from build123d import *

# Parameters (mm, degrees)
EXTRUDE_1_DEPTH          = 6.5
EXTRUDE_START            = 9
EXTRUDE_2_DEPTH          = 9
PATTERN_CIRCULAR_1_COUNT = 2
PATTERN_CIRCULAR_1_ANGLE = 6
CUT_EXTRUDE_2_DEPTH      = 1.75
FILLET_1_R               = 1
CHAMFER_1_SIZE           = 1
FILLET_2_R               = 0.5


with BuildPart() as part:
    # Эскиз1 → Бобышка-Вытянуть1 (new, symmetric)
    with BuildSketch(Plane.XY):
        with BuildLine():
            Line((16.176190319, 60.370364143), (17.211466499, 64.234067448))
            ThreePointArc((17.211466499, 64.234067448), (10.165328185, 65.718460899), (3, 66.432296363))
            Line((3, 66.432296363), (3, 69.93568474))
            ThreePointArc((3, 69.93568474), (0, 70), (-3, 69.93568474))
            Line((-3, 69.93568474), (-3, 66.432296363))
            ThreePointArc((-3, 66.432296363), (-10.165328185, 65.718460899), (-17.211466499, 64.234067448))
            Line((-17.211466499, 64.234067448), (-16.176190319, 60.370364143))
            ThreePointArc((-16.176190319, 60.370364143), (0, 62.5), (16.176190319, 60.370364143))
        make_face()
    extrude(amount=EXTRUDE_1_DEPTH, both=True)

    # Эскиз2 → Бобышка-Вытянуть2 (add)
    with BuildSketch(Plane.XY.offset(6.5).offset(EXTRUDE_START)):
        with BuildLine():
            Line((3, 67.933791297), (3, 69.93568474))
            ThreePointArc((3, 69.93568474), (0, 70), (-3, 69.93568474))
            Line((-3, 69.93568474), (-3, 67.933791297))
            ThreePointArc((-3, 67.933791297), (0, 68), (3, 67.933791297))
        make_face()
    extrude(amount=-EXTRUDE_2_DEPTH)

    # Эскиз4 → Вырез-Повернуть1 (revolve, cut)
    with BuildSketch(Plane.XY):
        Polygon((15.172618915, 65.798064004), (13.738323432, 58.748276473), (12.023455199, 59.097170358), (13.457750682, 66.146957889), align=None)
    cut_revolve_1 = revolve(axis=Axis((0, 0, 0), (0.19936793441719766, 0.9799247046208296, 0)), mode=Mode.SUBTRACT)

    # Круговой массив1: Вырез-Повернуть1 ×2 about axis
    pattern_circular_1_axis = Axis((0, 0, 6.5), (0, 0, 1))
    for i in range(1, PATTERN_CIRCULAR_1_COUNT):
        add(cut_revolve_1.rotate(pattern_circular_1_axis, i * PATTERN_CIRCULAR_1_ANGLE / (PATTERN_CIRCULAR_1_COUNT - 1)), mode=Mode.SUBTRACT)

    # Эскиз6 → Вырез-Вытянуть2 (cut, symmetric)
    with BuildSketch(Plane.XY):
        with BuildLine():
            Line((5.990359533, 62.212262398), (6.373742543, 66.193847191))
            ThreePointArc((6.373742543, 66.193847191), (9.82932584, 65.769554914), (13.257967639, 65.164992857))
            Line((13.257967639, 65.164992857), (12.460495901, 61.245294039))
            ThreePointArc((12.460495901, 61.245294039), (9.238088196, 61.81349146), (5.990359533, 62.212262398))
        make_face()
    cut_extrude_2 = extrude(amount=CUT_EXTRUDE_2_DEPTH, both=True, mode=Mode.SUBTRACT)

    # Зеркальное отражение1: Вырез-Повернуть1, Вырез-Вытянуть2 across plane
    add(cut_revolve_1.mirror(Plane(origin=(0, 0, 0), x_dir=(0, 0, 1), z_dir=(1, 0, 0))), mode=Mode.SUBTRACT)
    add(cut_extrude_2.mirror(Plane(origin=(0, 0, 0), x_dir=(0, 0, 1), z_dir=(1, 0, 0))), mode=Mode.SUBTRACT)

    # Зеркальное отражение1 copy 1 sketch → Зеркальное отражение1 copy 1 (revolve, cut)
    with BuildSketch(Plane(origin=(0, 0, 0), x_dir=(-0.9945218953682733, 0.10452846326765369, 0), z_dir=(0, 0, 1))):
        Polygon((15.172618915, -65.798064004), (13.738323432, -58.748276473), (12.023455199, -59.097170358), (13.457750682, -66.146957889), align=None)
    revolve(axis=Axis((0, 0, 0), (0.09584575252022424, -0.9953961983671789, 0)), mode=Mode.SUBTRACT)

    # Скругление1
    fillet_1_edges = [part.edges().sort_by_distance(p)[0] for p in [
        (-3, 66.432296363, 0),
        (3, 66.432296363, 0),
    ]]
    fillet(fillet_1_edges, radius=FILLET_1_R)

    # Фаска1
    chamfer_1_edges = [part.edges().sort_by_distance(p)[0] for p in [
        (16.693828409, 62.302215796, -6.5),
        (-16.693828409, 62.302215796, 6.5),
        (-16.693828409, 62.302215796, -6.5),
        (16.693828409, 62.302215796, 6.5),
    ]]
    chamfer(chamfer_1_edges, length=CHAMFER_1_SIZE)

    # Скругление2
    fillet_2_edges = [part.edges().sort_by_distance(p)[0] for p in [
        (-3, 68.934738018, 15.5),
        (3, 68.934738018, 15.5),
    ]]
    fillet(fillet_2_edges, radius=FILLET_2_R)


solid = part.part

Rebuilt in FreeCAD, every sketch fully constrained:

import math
import FreeCAD as App
import Part
import Sketcher

V = App.Vector
Q = App.Units.Quantity


def edges_at(feature, points):
    """Names of the edges that pass closest to the given points."""
    edges = feature.Shape.Edges
    near = lambda p: min(range(len(edges)), key=lambda i: edges[i].distToShape(Part.Vertex(*p))[0])
    return sorted({f"Edge{near(p) + 1}" for p in points})


def add_polygon(sketch, points):
    """Adds a closed chain of lines whose ends are joined by coincident constraints."""
    first, n = sketch.GeometryCount, len(points)
    for a, b in zip(points, points[1:] + points[:1]):
        sketch.addGeometry(Part.LineSegment(App.Vector(*a, 0), App.Vector(*b, 0)), False)
    for i in range(n):
        sketch.addConstraint(Sketcher.Constraint("Coincident", first + i, 2, first + (i + 1) % n, 1))

doc = App.newDocument("Part")
body = doc.addObject("PartDesign::Body", "Body")

# Sketch on XY plane
sketch1 = doc.addObject("Sketcher::SketchObject", "Sketch")
body.addObject(sketch1)
sketch1.AttachmentSupport = (doc.XY_Plane, [""])
sketch1.MapMode = "FlatFace"
sketch1.addGeometry([
    Part.LineSegment(V(16.2, 60.4, 0), V(17.2, 64.2, 0)),  # 0
    Part.ArcOfCircle(Part.Circle(V(0, 0, 0), V(0, 0, 1), 66.5), math.radians(75), math.radians(87.41)),  # 1
    Part.LineSegment(V(3, 66.4, 0), V(3, 69.9, 0)),  # 2
    Part.ArcOfCircle(Part.Circle(V(0, 0, 0), V(0, 0, 1), 70), math.radians(87.54), math.radians(92.46)),  # 3
    Part.LineSegment(V(-3, 69.9, 0), V(-3, 66.4, 0)),  # 4
    Part.ArcOfCircle(Part.Circle(V(0, 0, 0), V(0, 0, 1), 66.5), math.radians(92.59), math.radians(105)),  # 5
    Part.LineSegment(V(-17.2, 64.2, 0), V(-16.2, 60.4, 0)),  # 6
    Part.ArcOfCircle(Part.Circle(V(0, 0, 0), V(0, 0, 1), 62.5), math.radians(75), math.radians(105)),  # 7
], False)
sketch1.addConstraint([
    Sketcher.Constraint("Coincident", 0, 2, 1, 1),
    Sketcher.Constraint("Coincident", 1, 2, 2, 1),
    Sketcher.Constraint("Coincident", 2, 2, 3, 1),
    Sketcher.Constraint("Coincident", 3, 2, 4, 1),
    Sketcher.Constraint("Coincident", 4, 2, 5, 1),
    Sketcher.Constraint("Coincident", 5, 2, 6, 1),
    Sketcher.Constraint("Coincident", 6, 2, 7, 2),
    Sketcher.Constraint("Coincident", 7, 1, 0, 1),
    Sketcher.Constraint("Vertical", 2),
    Sketcher.Constraint("Vertical", 4),
    Sketcher.Constraint("Coincident", 1, 3, -1, 1),
    Sketcher.Constraint("Coincident", 3, 3, -1, 1),
    Sketcher.Constraint("Coincident", 5, 3, -1, 1),
    Sketcher.Constraint("Coincident", 7, 3, -1, 1),
    Sketcher.Constraint("Equal", 1, 5),
    Sketcher.Constraint("Horizontal", 2, 2, 3, 2),
    Sketcher.Constraint("Horizontal", 0, 2, 5, 2),
    Sketcher.Constraint("Horizontal", 6, 2, 7, 1),
    Sketcher.Constraint("Radius", 3, 70.0),
    Sketcher.Constraint("Radius", 1, 66.5),
    Sketcher.Constraint("Radius", 7, 62.5),
    Sketcher.Constraint("Angle", 0, Q("75 deg")),
    Sketcher.Constraint("DistanceX", -1, 1, 1, 2, 3.0),
    Sketcher.Constraint("DistanceX", 6, 2, -1, 1, 16.17619),
])
pad1 = doc.addObject("PartDesign::Pad", "Pad")
body.addObject(pad1)
pad1.Profile = sketch1
pad1.Length = 13
pad1.Midplane = True

# Sketch on XY plane
sketch2 = doc.addObject("Sketcher::SketchObject", "Sketch001")
body.addObject(sketch2)
sketch2.AttachmentSupport = (doc.XY_Plane, [""])
sketch2.MapMode = "FlatFace"
sketch2.AttachmentOffset = App.Placement(V(0, 0, 15.5), App.Rotation())
sketch2.addGeometry([
    Part.LineSegment(V(3, 67.9, 0), V(3, 69.9, 0)),
    Part.ArcOfCircle(Part.Circle(V(0, 0, 0), V(0, 0, 1), 70), math.radians(87.54), math.radians(92.46)),
    Part.LineSegment(V(-3, 69.9, 0), V(-3, 67.9, 0)),
    Part.ArcOfCircle(Part.Circle(V(0, 0, 0), V(0, 0, 1), 68), math.radians(87.47), math.radians(92.53)),
], False)
sketch2.addConstraint([
    Sketcher.Constraint("Coincident", 0, 2, 1, 1),
    Sketcher.Constraint("Coincident", 1, 2, 2, 1),
    Sketcher.Constraint("Coincident", 2, 2, 3, 2),
    Sketcher.Constraint("Coincident", 3, 1, 0, 1),
    Sketcher.Constraint("Vertical", 0),
    Sketcher.Constraint("Vertical", 2),
    Sketcher.Constraint("Coincident", 1, 3, -1, 1),
    Sketcher.Constraint("Coincident", 3, 3, -1, 1),
    Sketcher.Constraint("Horizontal", 0, 2, 1, 2),
    Sketcher.Constraint("Radius", 1, 70.0),
    Sketcher.Constraint("Radius", 3, 68.0),
    Sketcher.Constraint("DistanceX", -1, 1, 0, 2, 3.0),
])
pad2 = doc.addObject("PartDesign::Pad", "Pad001")
body.addObject(pad2)
pad2.Profile = sketch2
pad2.Length = 9
pad2.Reversed = True

# Sketch on XY plane
sketch3 = doc.addObject("Sketcher::SketchObject", "Sketch002")
body.addObject(sketch3)
sketch3.AttachmentSupport = (doc.XY_Plane, [""])
sketch3.MapMode = "FlatFace"
add_polygon(sketch3, [(13.7, 58.7), (15.2, 65.8), (13.5, 66.1), (12, 59.1)])  # lines 0-3
sketch3.addGeometry(Part.LineSegment(V(12, 59.1, 0), V(13.5, 66.1, 0)), True)  # axis
sketch3.addConstraint([
    Sketcher.Constraint("Coincident", 4, 1, 2, 2),
    Sketcher.Constraint("Coincident", 4, 2, 1, 2),
    Sketcher.Constraint("Perpendicular", 0, 1),
    Sketcher.Constraint("Perpendicular", 1, 2),
    Sketcher.Constraint("Perpendicular", 2, 3),
    Sketcher.Constraint("Angle", 0, Q("78.5 deg")),
    Sketcher.Constraint("Distance", 1, 1.75),
    Sketcher.Constraint("DistanceX", -1, 1, 0, 2, 15.172619),
    Sketcher.Constraint("DistanceY", -1, 1, 2, 2, 59.09717),
    Sketcher.Constraint("DistanceY", 3, 2, 1, 2, 7.398681),
])
groove = doc.addObject("PartDesign::Groove", "Groove")
body.addObject(groove)
groove.Profile = sketch3
groove.ReferenceAxis = (sketch3, ["Axis0"])
groove.Angle = 360
doc.recompute()

polarpattern = doc.addObject("PartDesign::PolarPattern", "PolarPattern")
body.addObject(polarpattern)
polarpattern.Originals = [groove]
polarpattern.Axis = (doc.Z_Axis, [""])
polarpattern.Angle = 6
polarpattern.Occurrences = 2
body.Tip = polarpattern

# Sketch on XY plane
sketch4 = doc.addObject("Sketcher::SketchObject", "Sketch003")
body.addObject(sketch4)
sketch4.AttachmentSupport = (doc.XY_Plane, [""])
sketch4.MapMode = "FlatFace"
sketch4.addGeometry([
    Part.LineSegment(V(6.4, 66.2, 0), V(6, 62.2, 0)),
    Part.ArcOfCircle(Part.Circle(V(0, 0, 0), V(0, 0, 1), 62.5), math.radians(78.5), math.radians(84.5)),
    Part.LineSegment(V(12.5, 61.2, 0), V(13.3, 65.2, 0)),
    Part.ArcOfCircle(Part.Circle(V(0, 0, 0), V(0, 0, 1), 66.5), math.radians(78.5), math.radians(84.5)),
], False)
sketch4.addConstraint([
    Sketcher.Constraint("Coincident", 0, 2, 1, 2),
    Sketcher.Constraint("Coincident", 1, 1, 2, 1),
    Sketcher.Constraint("Coincident", 2, 2, 3, 1),
    Sketcher.Constraint("Coincident", 3, 2, 0, 1),
    Sketcher.Constraint("Coincident", 1, 3, -1, 1),
    Sketcher.Constraint("Coincident", 3, 3, -1, 1),
    Sketcher.Constraint("Radius", 1, 62.5),
    Sketcher.Constraint("Radius", 3, 66.499999),
    Sketcher.Constraint("Angle", 0, Q("-95.5 deg")),
    Sketcher.Constraint("Angle", 2, Q("78.5 deg")),
    Sketcher.Constraint("DistanceX", -1, 1, 0, 2, 5.99036),
    Sketcher.Constraint("DistanceY", 1, 1, 0, 2, 0.966968),
])
pocket1 = doc.addObject("PartDesign::Pocket", "Pocket")
body.addObject(pocket1)
pocket1.Profile = sketch4
pocket1.Length = 3.5
pocket1.Midplane = True
doc.recompute()

mirrored = doc.addObject("PartDesign::Mirrored", "Mirrored")
body.addObject(mirrored)
mirrored.Originals = [groove, pocket1]
mirrored.MirrorPlane = (doc.YZ_Plane, [""])
body.Tip = mirrored

# Sketch on XY plane
sketch5 = doc.addObject("Sketcher::SketchObject", "Sketch004")
body.addObject(sketch5)
sketch5.AttachmentSupport = (doc.XY_Plane, [""])
sketch5.MapMode = "FlatFace"
add_polygon(sketch5, [(-8.2, 67), (-7.5, 59.9), (-5.8, 60), (-6.5, 67.2)])  # lines 0-3
sketch5.addGeometry(Part.LineSegment(V(-6.5, 67.2, 0), V(-5.8, 60, 0)), True)  # axis
sketch5.addConstraint([
    Sketcher.Constraint("Coincident", 4, 1, 2, 2),
    Sketcher.Constraint("Coincident", 4, 2, 1, 2),
    Sketcher.Constraint("Perpendicular", 0, 1),
    Sketcher.Constraint("Perpendicular", 1, 2),
    Sketcher.Constraint("Perpendicular", 2, 3),
    Sketcher.Constraint("Angle", 0, Q("-84.5 deg")),
    Sketcher.Constraint("Distance", 1, 1.75),
    Sketcher.Constraint("DistanceX", 3, 2, -1, 1, 8.211731),
    Sketcher.Constraint("DistanceX", 0, 2, 2, 2, 1.052409),
    Sketcher.Constraint("DistanceY", -1, 1, 0, 2, 59.862493),
])
groove2 = doc.addObject("PartDesign::Groove", "Groove001")
body.addObject(groove2)
groove2.Profile = sketch5
groove2.ReferenceAxis = (sketch5, ["Axis0"])
groove2.Angle = 360
doc.recompute()

fillet = doc.addObject("PartDesign::Fillet", "Fillet")
body.addObject(fillet)
fillet.Base = (groove2, edges_at(groove2, [(-3, 66.432, 0), (3, 66.432, 0)]))
fillet.Radius = 1
doc.recompute()

chamfer = doc.addObject("PartDesign::Chamfer", "Chamfer")
body.addObject(chamfer)
chamfer.Base = (fillet, edges_at(fillet, [
    (16.694, 62.302, -6.5),
    (-16.694, 62.302, 6.5),
    (-16.694, 62.302, -6.5),
    (16.694, 62.302, 6.5),
]))
chamfer.Size = 1
doc.recompute()

fillet2 = doc.addObject("PartDesign::Fillet", "Fillet001")
body.addObject(fillet2)
fillet2.Base = (chamfer, edges_at(chamfer, [(-3, 68.935, 15.5), (3, 68.935, 15.5)]))
fillet2.Radius = 0.5

doc.recompute()
